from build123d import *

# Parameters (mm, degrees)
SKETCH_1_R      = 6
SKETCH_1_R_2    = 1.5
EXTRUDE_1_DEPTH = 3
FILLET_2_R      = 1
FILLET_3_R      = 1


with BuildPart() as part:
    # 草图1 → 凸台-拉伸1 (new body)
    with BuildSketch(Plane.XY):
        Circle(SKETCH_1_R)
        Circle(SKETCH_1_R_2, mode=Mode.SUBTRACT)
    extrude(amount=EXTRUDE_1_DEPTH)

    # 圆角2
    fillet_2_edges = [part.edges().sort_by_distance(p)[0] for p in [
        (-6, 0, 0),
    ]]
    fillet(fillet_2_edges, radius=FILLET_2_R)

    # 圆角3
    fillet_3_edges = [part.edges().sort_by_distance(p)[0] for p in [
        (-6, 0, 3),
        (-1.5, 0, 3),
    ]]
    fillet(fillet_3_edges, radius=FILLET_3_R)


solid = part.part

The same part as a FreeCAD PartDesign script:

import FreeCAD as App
import Part
import Sketcher


def edges_at(feature, points):
    """Names of the edges that pass closest to the given points."""
    edges = feature.Shape.Edges
    near = lambda p: min(range(len(edges)), key=lambda i: edges[i].distToShape(Part.Vertex(*p))[0])
    return sorted({f"Edge{near(p) + 1}" for p in points})

doc = App.newDocument("Part")
body = doc.addObject("PartDesign::Body", "Body")

# Sketch on XY plane
sketch1 = body.newObject("Sketcher::SketchObject", "Sketch")
sketch1.AttachmentSupport = (doc.getObject("XY_Plane"), [""])
sketch1.MapMode = "FlatFace"
sketch1.addGeometry([
    Part.Circle(App.Vector(0, 0, 0), App.Vector(0, 0, 1), 6),
    Part.Circle(App.Vector(0, 0, 0), App.Vector(0, 0, 1), 1.5),
], False)
sketch1.addConstraint([
    Sketcher.Constraint("Coincident", 0, 3, -1, 1),
    Sketcher.Constraint("Coincident", 1, 3, -1, 1),
    Sketcher.Constraint("Diameter", 0, 12.0),
    Sketcher.Constraint("Diameter", 1, 3.0),
])
pad1 = body.newObject("PartDesign::Pad", "Pad")
pad1.Profile = sketch1
pad1.Length = 3
doc.recompute()

fillet = body.newObject("PartDesign::Fillet", "Fillet")
fillet.Base = (pad1, edges_at(pad1, [(-6, 0, 0)]))
fillet.Radius = 1
doc.recompute()

fillet2 = body.newObject("PartDesign::Fillet", "Fillet001")
fillet2.Base = (fillet, edges_at(fillet, [(-6, 0, 3), (-1.5, 0, 3)]))
fillet2.Radius = 1

doc.recompute()
